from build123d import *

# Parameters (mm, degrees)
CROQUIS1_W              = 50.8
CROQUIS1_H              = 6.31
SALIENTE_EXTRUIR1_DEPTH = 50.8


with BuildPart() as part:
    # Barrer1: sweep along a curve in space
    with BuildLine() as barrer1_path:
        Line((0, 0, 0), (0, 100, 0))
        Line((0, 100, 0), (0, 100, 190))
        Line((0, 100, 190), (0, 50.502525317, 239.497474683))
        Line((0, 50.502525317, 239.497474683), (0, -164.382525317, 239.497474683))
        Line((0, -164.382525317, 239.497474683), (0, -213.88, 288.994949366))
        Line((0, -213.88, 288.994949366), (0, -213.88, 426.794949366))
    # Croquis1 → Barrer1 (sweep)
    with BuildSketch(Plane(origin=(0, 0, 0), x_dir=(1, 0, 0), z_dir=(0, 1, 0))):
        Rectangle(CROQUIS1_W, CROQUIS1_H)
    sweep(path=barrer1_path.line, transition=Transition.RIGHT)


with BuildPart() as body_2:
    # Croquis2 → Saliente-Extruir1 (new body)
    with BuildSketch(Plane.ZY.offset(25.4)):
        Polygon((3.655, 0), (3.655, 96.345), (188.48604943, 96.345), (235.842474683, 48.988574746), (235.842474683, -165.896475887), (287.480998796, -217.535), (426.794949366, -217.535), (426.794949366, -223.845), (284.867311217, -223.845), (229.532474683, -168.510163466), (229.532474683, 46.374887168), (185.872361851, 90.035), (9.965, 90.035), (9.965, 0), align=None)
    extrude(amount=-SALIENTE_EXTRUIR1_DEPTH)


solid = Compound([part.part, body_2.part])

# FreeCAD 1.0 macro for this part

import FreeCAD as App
import Part
import Sketcher

V = App.Vector
Q = App.Units.Quantity

doc = App.newDocument("Part")
params = doc.addObject("Spreadsheet::Sheet", "Params")
for row, (alias, value) in enumerate([
    ("sketch1_width", "50.8 mm"),
    ("sketch1_height", "6.31 mm"),
    ("sketch2_width", "100 mm"),
    ("sketch2_height", "190 mm"),
    ("sketch2_length", "70 mm"),
    ("sketch2_height2", "137.8 mm"),
    ("sketch3_width", "6.31 mm"),
    ("pad1_length", "50.8 mm"),
], start=1):
    params.set(f"A{row}", alias)
    params.set(f"B{row}", "=" + value)
    params.setAlias(f"B{row}", alias)

body = doc.addObject("PartDesign::Body", "Body")

# Sketch on XZ plane
sketch1 = doc.addObject("Sketcher::SketchObject", "Sketch")
body.addObject(sketch1)
sketch1.AttachmentSupport = (doc.XZ_Plane, [""])
sketch1.MapMode = "FlatFace"
sketch1.addGeometry([
    Part.LineSegment(V(-25, -3, 0), V(-25, 3, 0)),
    Part.LineSegment(V(-25, 3, 0), V(25, 3, 0)),
    Part.LineSegment(V(25, 3, 0), V(25, -3, 0)),
    Part.LineSegment(V(25, -3, 0), V(-25, -3, 0)),
], False)
sketch1.addConstraint([
    Sketcher.Constraint("Coincident", 0, 2, 1, 1),
    Sketcher.Constraint("Coincident", 1, 2, 2, 1),
    Sketcher.Constraint("Coincident", 2, 2, 3, 1),
    Sketcher.Constraint("Coincident", 3, 2, 0, 1),
    Sketcher.Constraint("Vertical", 0),
    Sketcher.Constraint("Horizontal", 1),
    Sketcher.Constraint("Vertical", 2),
    Sketcher.Constraint("Horizontal", 3),
    Sketcher.Constraint("Symmetric", 0, 2, 2, 2, -1, 1),
    Sketcher.Constraint("DistanceX", 1, 1, 1, 2, 50.8),
    Sketcher.Constraint("DistanceY", 0, 1, 0, 2, 6.31),
])
sketch1.setExpression("Constraints[9]", "Params.sketch1_width")
sketch1.setExpression("Constraints[10]", "Params.sketch1_height")

# Sketch on YZ plane
sketch2 = doc.addObject("Sketcher::SketchObject", "Sketch001")
body.addObject(sketch2)
sketch2.AttachmentSupport = (doc.YZ_Plane, [""])
sketch2.MapMode = "FlatFace"
sketch2.addGeometry([
    Part.LineSegment(V(0, 0, 0), V(100, 0, 0)),  # 0
    Part.LineSegment(V(100, 0, 0), V(100, 190, 0)),  # 1
    Part.LineSegment(V(100, 190, 0), V(51, 239, 0)),  # 2
    Part.LineSegment(V(51, 239, 0), V(-164, 239, 0)),  # 3
    Part.LineSegment(V(-164, 239, 0), V(-214, 289, 0)),  # 4
    Part.LineSegment(V(-214, 289, 0), V(-214, 427, 0)),  # 5
], False)
sketch2.addConstraint([
    Sketcher.Constraint("Coincident", 0, 2, 1, 1),
    Sketcher.Constraint("Coincident", 1, 2, 2, 1),
    Sketcher.Constraint("Coincident", 2, 2, 3, 1),
    Sketcher.Constraint("Coincident", 3, 2, 4, 1),
    Sketcher.Constraint("Coincident", 4, 2, 5, 1),
    Sketcher.Constraint("Horizontal", 0),
    Sketcher.Constraint("Vertical", 1),
    Sketcher.Constraint("Horizontal", 3),
    Sketcher.Constraint("Vertical", 5),
    Sketcher.Constraint("Coincident", 0, 1, -1, 1),
    Sketcher.Constraint("Parallel", 2, 4),
    Sketcher.Constraint("Equal", 2, 4),
    Sketcher.Constraint("DistanceX", 0, 1, 0, 2, 100.0),
    Sketcher.Constraint("DistanceY", 1, 1, 1, 2, 190.0),
    Sketcher.Constraint("Angle", 2, Q("135 deg")),
    Sketcher.Constraint("Distance", 2, 70.0),
    Sketcher.Constraint("DistanceY", 5, 1, 5, 2, 137.8),
    Sketcher.Constraint("DistanceX", 4, 2, -1, 1, 213.88),
])
sketch2.setExpression("Constraints[12]", "Params.sketch2_width")
sketch2.setExpression("Constraints[13]", "Params.sketch2_height")
sketch2.setExpression("Constraints[15]", "Params.sketch2_length")
sketch2.setExpression("Constraints[16]", "Params.sketch2_height2")
doc.recompute()

additivepipe = doc.addObject("PartDesign::AdditivePipe", "AdditivePipe")
body.addObject(additivepipe)
additivepipe.Profile = sketch1
additivepipe.Spine = (sketch2, ["Edge1", "Edge2", "Edge3", "Edge4", "Edge5", "Edge6"])
additivepipe.Transition = "Right corner"
body2 = doc.addObject("PartDesign::Body", "Body001")

# Sketch on YZ plane
sketch3 = doc.addObject("Sketcher::SketchObject", "Sketch002")
body2.addObject(sketch3)
sketch3.AttachmentSupport = (doc.getObject("YZ_Plane001"), [""])
sketch3.MapMode = "FlatFace"
sketch3.AttachmentOffset = App.Placement(V(0, 0, -25.4), App.Rotation())
sketch3.addGeometry([
    Part.LineSegment(V(96, 4, 0), V(0, 4, 0)),  # 0
    Part.LineSegment(V(0, 4, 0), V(0, 10, 0)),  # 1
    Part.LineSegment(V(0, 10, 0), V(90, 10, 0)),  # 2
    Part.LineSegment(V(90, 10, 0), V(90, 186, 0)),  # 3
    Part.LineSegment(V(90, 186, 0), V(46, 230, 0)),  # 4
    Part.LineSegment(V(46, 230, 0), V(-169, 230, 0)),  # 5
    Part.LineSegment(V(-169, 230, 0), V(-224, 285, 0)),  # 6
    Part.LineSegment(V(-224, 285, 0), V(-224, 427, 0)),  # 7
    Part.LineSegment(V(-224, 427, 0), V(-218, 427, 0)),  # 8
    Part.LineSegment(V(-218, 427, 0), V(-218, 287, 0)),  # 9
    Part.LineSegment(V(-218, 287, 0), V(-166, 236, 0)),  # 10
    Part.LineSegment(V(-166, 236, 0), V(49, 236, 0)),  # 11
    Part.LineSegment(V(49, 236, 0), V(96, 188, 0)),  # 12
    Part.LineSegment(V(96, 188, 0), V(96, 4, 0)),  # 13
], False)
sketch3.addConstraint([
    Sketcher.Constraint("Coincident", 0, 2, 1, 1),
    Sketcher.Constraint("Coincident", 1, 2, 2, 1),
    Sketcher.Constraint("Coincident", 2, 2, 3, 1),
    Sketcher.Constraint("Coincident", 3, 2, 4, 1),
    Sketcher.Constraint("Coincident", 4, 2, 5, 1),
    Sketcher.Constraint("Coincident", 5, 2, 6, 1),
    Sketcher.Constraint("Coincident", 6, 2, 7, 1),
    Sketcher.Constraint("Coincident", 7, 2, 8, 1),
    Sketcher.Constraint("Coincident", 8, 2, 9, 1),
    Sketcher.Constraint("Coincident", 9, 2, 10, 1),
    Sketcher.Constraint("Coincident", 10, 2, 11, 1),
    Sketcher.Constraint("Coincident", 11, 2, 12, 1),
    Sketcher.Constraint("Coincident", 12, 2, 13, 1),
    Sketcher.Constraint("Coincident", 13, 2, 0, 1),
    Sketcher.Constraint("Horizontal", 0),
    Sketcher.Constraint("Vertical", 1),
    Sketcher.Constraint("Horizontal", 2),
    Sketcher.Constraint("Vertical", 3),
    Sketcher.Constraint("Horizontal", 5),
    Sketcher.Constraint("Vertical", 7),
    Sketcher.Constraint("Horizontal", 8),
    Sketcher.Constraint("Vertical", 9),
    Sketcher.Constraint("Horizontal", 11),
    Sketcher.Constraint("Vertical", 13),
    Sketcher.Constraint("PointOnObject", 0, 2, -2),
    Sketcher.Constraint("Parallel", 4, 6),
    Sketcher.Constraint("Parallel", 6, 10),
    Sketcher.Constraint("Parallel", 10, 12),
    Sketcher.Constraint("Equal", 5, 11),
    Sketcher.Constraint("Equal", 8, 1),
    Sketcher.Constraint("Angle", 4, Q("135 deg")),
    Sketcher.Constraint("DistanceX", 8, 1, 8, 2, 6.31),
    Sketcher.Constraint("DistanceX", 0, 2, 0, 1, 96.345),
    Sketcher.Constraint("DistanceX", 2, 1, 2, 2, 90.035),
    Sketcher.Constraint("DistanceX", 6, 2, 3, 2, 313.88),
    Sketcher.Constraint("DistanceY", 5, 2, 10, 2, 6.31),
    Sketcher.Constraint("DistanceY", -1, 1, 0, 2, 3.655),
    Sketcher.Constraint("DistanceY", -1, 1, 9, 2, 287.480999),
    Sketcher.Constraint("Distance", 10, 73.027901),
    Sketcher.Constraint("Distance", 12, 66.972099),
    Sketcher.Constraint("DistanceY", 3, 1, 3, 2, 175.907362),
    Sketcher.Constraint("DistanceY", 7, 1, 7, 2, 141.927638),
])
sketch3.setExpression("Constraints[31]", "Params.sketch3_width")
pad1 = doc.addObject("PartDesign::Pad", "Pad")
body2.addObject(pad1)
pad1.Profile = sketch3
pad1.setExpression("Length", "Params.pad1_length")

doc.recompute()
